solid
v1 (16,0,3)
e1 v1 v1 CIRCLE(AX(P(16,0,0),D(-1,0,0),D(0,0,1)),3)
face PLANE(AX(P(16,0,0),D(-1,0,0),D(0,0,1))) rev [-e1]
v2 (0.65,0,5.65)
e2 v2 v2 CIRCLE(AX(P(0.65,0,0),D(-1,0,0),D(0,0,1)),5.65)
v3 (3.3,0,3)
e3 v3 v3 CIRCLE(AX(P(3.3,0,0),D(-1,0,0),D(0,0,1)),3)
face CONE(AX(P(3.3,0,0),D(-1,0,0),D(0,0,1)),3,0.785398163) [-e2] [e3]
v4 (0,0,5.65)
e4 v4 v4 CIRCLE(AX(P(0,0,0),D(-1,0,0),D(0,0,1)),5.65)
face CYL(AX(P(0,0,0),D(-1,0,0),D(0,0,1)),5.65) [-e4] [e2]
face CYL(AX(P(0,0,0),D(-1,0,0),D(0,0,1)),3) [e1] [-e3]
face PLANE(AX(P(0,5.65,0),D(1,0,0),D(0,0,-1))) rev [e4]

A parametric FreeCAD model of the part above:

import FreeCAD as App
import Part
import Sketcher

V = App.Vector
Q = App.Units.Quantity


def add_polygon(sketch, points):
    """Adds a closed chain of lines whose ends are joined by coincident constraints."""
    first, n = sketch.GeometryCount, len(points)
    for a, b in zip(points, points[1:] + points[:1]):
        sketch.addGeometry(Part.LineSegment(App.Vector(*a, 0), App.Vector(*b, 0)), False)
    for i in range(n):
        sketch.addConstraint(Sketcher.Constraint("Coincident", first + i, 2, first + (i + 1) % n, 1))

doc = App.newDocument("Part")
params = doc.addObject("Spreadsheet::Sheet", "Params")
for row, (alias, value) in enumerate([
    ("sketch1_width", "16 mm"),
    ("sketch1_height", "3 mm"),
    ("sketch1_width2", "12.7 mm"),
    ("sketch1_width3", "0.65 mm"),
    ("revolution_angle", "360 deg"),
], start=1):
    params.set(f"A{row}", alias)
    params.set(f"B{row}", "=" + value)
    params.setAlias(f"B{row}", alias)

body = doc.addObject("PartDesign::Body", "Body")

# Sketch on XY plane
sketch1 = body.newObject("Sketcher::SketchObject", "Sketch")
sketch1.AttachmentSupport = (doc.getObject("XY_Plane"), [""])
sketch1.MapMode = "FlatFace"
add_polygon(sketch1, [(0, 0), (16, 0), (16, 3), (3.3, 3), (0.7, 5.7), (0, 5.7)])  # lines 0-5
sketch1.addConstraint(Sketcher.Constraint("Horizontal", 0))
sketch1.addConstraint(Sketcher.Constraint("Vertical", 1))
sketch1.addConstraint(Sketcher.Constraint("Horizontal", 2))
sketch1.addConstraint(Sketcher.Constraint("Horizontal", 4))
sketch1.addConstraint(Sketcher.Constraint("Vertical", 5))
sketch1.addConstraint(Sketcher.Constraint("Coincident", 5, 2, -1, 1))
sketch1.addConstraint(Sketcher.Constraint("DistanceX", 0, 1, 0, 2, Q("16 mm")))
sketch1.addConstraint(Sketcher.Constraint("DistanceY", 1, 1, 1, 2, Q("3 mm")))
sketch1.addConstraint(Sketcher.Constraint("Angle", 3, Q("135 deg")))
sketch1.addConstraint(Sketcher.Constraint("DistanceX", 2, 2, 2, 1, Q("12.7 mm")))
sketch1.addConstraint(Sketcher.Constraint("DistanceX", 4, 2, 4, 1, Q("0.65 mm")))
sketch1.setExpression("Constraints[12]", "Params.sketch1_width")
sketch1.setExpression("Constraints[13]", "Params.sketch1_height")
sketch1.setExpression("Constraints[15]", "Params.sketch1_width2")
sketch1.setExpression("Constraints[16]", "Params.sketch1_width3")
revolution = body.newObject("PartDesign::Revolution", "Revolution")
revolution.Profile = sketch1
revolution.ReferenceAxis = (sketch1, ["H_Axis"])
revolution.setExpression("Angle", "Params.revolution_angle")

doc.recompute()
